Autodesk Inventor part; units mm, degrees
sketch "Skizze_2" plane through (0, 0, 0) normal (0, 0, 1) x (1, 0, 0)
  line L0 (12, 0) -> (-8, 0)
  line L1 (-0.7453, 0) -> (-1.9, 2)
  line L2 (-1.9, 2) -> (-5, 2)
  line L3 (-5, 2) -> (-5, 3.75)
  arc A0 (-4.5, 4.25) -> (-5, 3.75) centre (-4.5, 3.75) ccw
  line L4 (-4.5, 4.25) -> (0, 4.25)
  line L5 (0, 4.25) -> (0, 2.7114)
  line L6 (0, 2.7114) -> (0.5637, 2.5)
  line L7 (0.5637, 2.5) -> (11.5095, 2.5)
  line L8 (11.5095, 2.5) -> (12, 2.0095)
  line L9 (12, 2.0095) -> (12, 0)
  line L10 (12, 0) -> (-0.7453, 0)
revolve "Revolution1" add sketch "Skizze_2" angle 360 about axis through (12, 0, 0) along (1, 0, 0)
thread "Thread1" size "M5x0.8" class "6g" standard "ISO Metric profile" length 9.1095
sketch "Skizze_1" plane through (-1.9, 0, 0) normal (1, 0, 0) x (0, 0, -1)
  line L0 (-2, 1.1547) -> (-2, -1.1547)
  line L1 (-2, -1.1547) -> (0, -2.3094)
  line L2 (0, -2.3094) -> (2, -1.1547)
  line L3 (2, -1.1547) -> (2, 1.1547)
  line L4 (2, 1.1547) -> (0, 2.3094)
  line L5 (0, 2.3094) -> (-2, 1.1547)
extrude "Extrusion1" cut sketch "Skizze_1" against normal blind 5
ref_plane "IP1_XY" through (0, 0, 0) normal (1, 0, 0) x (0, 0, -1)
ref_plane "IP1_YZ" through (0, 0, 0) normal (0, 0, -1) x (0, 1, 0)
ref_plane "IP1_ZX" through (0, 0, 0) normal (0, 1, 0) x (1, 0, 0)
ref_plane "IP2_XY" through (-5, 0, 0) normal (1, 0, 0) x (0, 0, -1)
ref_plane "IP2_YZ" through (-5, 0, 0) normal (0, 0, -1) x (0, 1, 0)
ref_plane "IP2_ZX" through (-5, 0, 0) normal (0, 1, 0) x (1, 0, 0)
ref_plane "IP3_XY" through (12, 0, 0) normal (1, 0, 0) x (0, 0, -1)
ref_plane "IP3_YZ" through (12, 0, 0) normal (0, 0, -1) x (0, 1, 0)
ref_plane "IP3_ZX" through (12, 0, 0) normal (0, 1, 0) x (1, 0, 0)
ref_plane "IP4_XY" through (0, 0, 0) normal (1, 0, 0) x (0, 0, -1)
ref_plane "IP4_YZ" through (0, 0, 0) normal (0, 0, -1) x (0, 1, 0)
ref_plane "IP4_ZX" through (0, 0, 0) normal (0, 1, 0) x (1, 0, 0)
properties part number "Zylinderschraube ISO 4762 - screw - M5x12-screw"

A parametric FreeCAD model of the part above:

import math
import FreeCAD as App
import Part
import Sketcher

V = App.Vector
Q = App.Units.Quantity

doc = App.newDocument("Part")
params = doc.addObject("Spreadsheet::Sheet", "Params")
for row, (alias, value) in enumerate([
    ("sketch1_radius", "0.5 mm"),
    ("sketch1_width", "4.5 mm"),
    ("sketch1_width2", "3.1 mm"),
    ("sketch1_height", "1.75 mm"),
    ("revolution_angle", "360 deg"),
    ("pocket1_length", "5 mm"),
], start=1):
    params.set(f"A{row}", alias)
    params.set(f"B{row}", "=" + value)
    params.setAlias(f"B{row}", alias)

body = doc.addObject("PartDesign::Body", "Body")

# Sketch on XY plane
sketch1 = body.newObject("Sketcher::SketchObject", "Sketch")
sketch1.AttachmentSupport = (doc.getObject("XY_Plane"), [""])
sketch1.MapMode = "FlatFace"
sketch1.addGeometry(Part.LineSegment(V(-0.7, 0, 0), V(12, 0, 0)), False)
sketch1.addGeometry(Part.LineSegment(V(12, 0, 0), V(12, 2, 0)), False)
sketch1.addGeometry(Part.LineSegment(V(12, 2, 0), V(11.5, 2.5, 0)), False)
sketch1.addGeometry(Part.LineSegment(V(11.5, 2.5, 0), V(0.6, 2.5, 0)), False)
sketch1.addGeometry(Part.LineSegment(V(0.6, 2.5, 0), V(0, 2.7, 0)), False)
sketch1.addGeometry(Part.LineSegment(V(0, 2.7, 0), V(0, 4.2, 0)), False)
sketch1.addGeometry(Part.LineSegment(V(0, 4.2, 0), V(-4.5, 4.2, 0)), False)
sketch1.addGeometry(Part.ArcOfCircle(Part.Circle(V(-4.5, 3.8, 0), V(0, 0, 1), 0.5), math.radians(90), math.radians(180)), False)
sketch1.addGeometry(Part.LineSegment(V(-5, 3.8, 0), V(-5, 2, 0)), False)
sketch1.addGeometry(Part.LineSegment(V(-5, 2, 0), V(-1.9, 2, 0)), False)
sketch1.addGeometry(Part.LineSegment(V(-1.9, 2, 0), V(-0.7, 0, 0)), False)
sketch1.addConstraint(Sketcher.Constraint("Coincident", 0, 2, 1, 1))
sketch1.addConstraint(Sketcher.Constraint("Coincident", 1, 2, 2, 1))
sketch1.addConstraint(Sketcher.Constraint("Coincident", 2, 2, 3, 1))
sketch1.addConstraint(Sketcher.Constraint("Coincident", 3, 2, 4, 1))
sketch1.addConstraint(Sketcher.Constraint("Coincident", 4, 2, 5, 1))
sketch1.addConstraint(Sketcher.Constraint("Coincident", 5, 2, 6, 1))
sketch1.addConstraint(Sketcher.Constraint("Tangent", 6, 2, 7, 1))
sketch1.addConstraint(Sketcher.Constraint("Tangent", 7, 2, 8, 1))
sketch1.addConstraint(Sketcher.Constraint("Coincident", 8, 2, 9, 1))
sketch1.addConstraint(Sketcher.Constraint("Coincident", 9, 2, 10, 1))
sketch1.addConstraint(Sketcher.Constraint("Coincident", 10, 2, 0, 1))
sketch1.addConstraint(Sketcher.Constraint("Horizontal", 0))
sketch1.addConstraint(Sketcher.Constraint("Vertical", 1))
sketch1.addConstraint(Sketcher.Constraint("Horizontal", 3))
sketch1.addConstraint(Sketcher.Constraint("Vertical", 5))
sketch1.addConstraint(Sketcher.Constraint("Horizontal", 6))
sketch1.addConstraint(Sketcher.Constraint("Vertical", 8))
sketch1.addConstraint(Sketcher.Constraint("Horizontal", 9))
sketch1.addConstraint(Sketcher.Constraint("PointOnObject", 0, 2, -1))
sketch1.addConstraint(Sketcher.Constraint("PointOnObject", 4, 2, -2))
sketch1.addConstraint(Sketcher.Constraint("Radius", 7, 0.5))
sketch1.addConstraint(Sketcher.Constraint("Angle", 2, Q("135 deg")))
sketch1.addConstraint(Sketcher.Constraint("Angle", 10, Q("-60 deg")))
sketch1.addConstraint(Sketcher.Constraint("DistanceX", 6, 2, 6, 1, 4.5))
sketch1.addConstraint(Sketcher.Constraint("DistanceX", 9, 1, 9, 2, 3.1))
sketch1.addConstraint(Sketcher.Constraint("DistanceX", -1, 1, 0, 2, 12.0))
sketch1.addConstraint(Sketcher.Constraint("DistanceY", -1, 1, 8, 2, 2.0))
sketch1.addConstraint(Sketcher.Constraint("DistanceY", 8, 2, 8, 1, 1.75))
sketch1.addConstraint(Sketcher.Constraint("DistanceY", -1, 1, 2, 2, 2.5))
sketch1.addConstraint(Sketcher.Constraint("Distance", 4, 0.602))
sketch1.addConstraint(Sketcher.Constraint("DistanceX", 3, 2, 3, 1, 10.9458))
sketch1.addConstraint(Sketcher.Constraint("DistanceY", 1, 1, 1, 2, 2.0095))
sketch1.setExpression("Constraints[20]", "Params.sketch1_radius")
sketch1.setExpression("Constraints[23]", "Params.sketch1_width")
sketch1.setExpression("Constraints[24]", "Params.sketch1_width2")
sketch1.setExpression("Constraints[27]", "Params.sketch1_height")
revolution = body.newObject("PartDesign::Revolution", "Revolution")
revolution.Profile = sketch1
revolution.ReferenceAxis = (sketch1, ["H_Axis"])
revolution.setExpression("Angle", "Params.revolution_angle")

# Sketch on YZ plane
sketch2 = body.newObject("Sketcher::SketchObject", "Sketch001")
sketch2.AttachmentSupport = (doc.getObject("YZ_Plane"), [""])
sketch2.MapMode = "FlatFace"
sketch2.AttachmentOffset = App.Placement(V(0, 0, -1.9), App.Rotation())
sketch2.addGeometry(Part.LineSegment(V(2.3, 0, 0), V(1.2, 2, 0)), False)
sketch2.addGeometry(Part.LineSegment(V(1.2, 2, 0), V(-1.2, 2, 0)), False)
sketch2.addGeometry(Part.LineSegment(V(-1.2, 2, 0), V(-2.3, 0, 0)), False)
sketch2.addGeometry(Part.LineSegment(V(-2.3, 0, 0), V(-1.2, -2, 0)), False)
sketch2.addGeometry(Part.LineSegment(V(-1.2, -2, 0), V(1.2, -2, 0)), False)
sketch2.addGeometry(Part.LineSegment(V(1.2, -2, 0), V(2.3, 0, 0)), False)
sketch2.addConstraint(Sketcher.Constraint("Coincident", 0, 2, 1, 1))
sketch2.addConstraint(Sketcher.Constraint("Coincident", 1, 2, 2, 1))
sketch2.addConstraint(Sketcher.Constraint("Coincident", 2, 2, 3, 1))
sketch2.addConstraint(Sketcher.Constraint("Coincident", 3, 2, 4, 1))
sketch2.addConstraint(Sketcher.Constraint("Coincident", 4, 2, 5, 1))
sketch2.addConstraint(Sketcher.Constraint("Coincident", 5, 2, 0, 1))
sketch2.addConstraint(Sketcher.Constraint("Horizontal", 1))
sketch2.addConstraint(Sketcher.Constraint("Horizontal", 4))
sketch2.addConstraint(Sketcher.Constraint("Symmetric", 0, 2, 3, 2, -1, 1))
sketch2.addConstraint(Sketcher.Constraint("Symmetric", 2, 2, 5, 2, -1, 1))
sketch2.addConstraint(Sketcher.Constraint("PointOnObject", 2, 2, -1))
sketch2.addConstraint(Sketcher.Constraint("Parallel", 2, 5))
sketch2.addConstraint(Sketcher.Constraint("Vertical", 1, 2, 3, 2))
sketch2.addConstraint(Sketcher.Constraint("Angle", 0, Q("120 deg")))
sketch2.addConstraint(Sketcher.Constraint("DistanceY", -1, 1, 0, 2, 2.0))
sketch2.addConstraint(Sketcher.Constraint("DistanceX", 1, 2, 1, 1, 2.3094))
pocket1 = body.newObject("PartDesign::Pocket", "Pocket")
pocket1.Profile = sketch2
pocket1.setExpression("Length", "Params.pocket1_length")

doc.recompute()
